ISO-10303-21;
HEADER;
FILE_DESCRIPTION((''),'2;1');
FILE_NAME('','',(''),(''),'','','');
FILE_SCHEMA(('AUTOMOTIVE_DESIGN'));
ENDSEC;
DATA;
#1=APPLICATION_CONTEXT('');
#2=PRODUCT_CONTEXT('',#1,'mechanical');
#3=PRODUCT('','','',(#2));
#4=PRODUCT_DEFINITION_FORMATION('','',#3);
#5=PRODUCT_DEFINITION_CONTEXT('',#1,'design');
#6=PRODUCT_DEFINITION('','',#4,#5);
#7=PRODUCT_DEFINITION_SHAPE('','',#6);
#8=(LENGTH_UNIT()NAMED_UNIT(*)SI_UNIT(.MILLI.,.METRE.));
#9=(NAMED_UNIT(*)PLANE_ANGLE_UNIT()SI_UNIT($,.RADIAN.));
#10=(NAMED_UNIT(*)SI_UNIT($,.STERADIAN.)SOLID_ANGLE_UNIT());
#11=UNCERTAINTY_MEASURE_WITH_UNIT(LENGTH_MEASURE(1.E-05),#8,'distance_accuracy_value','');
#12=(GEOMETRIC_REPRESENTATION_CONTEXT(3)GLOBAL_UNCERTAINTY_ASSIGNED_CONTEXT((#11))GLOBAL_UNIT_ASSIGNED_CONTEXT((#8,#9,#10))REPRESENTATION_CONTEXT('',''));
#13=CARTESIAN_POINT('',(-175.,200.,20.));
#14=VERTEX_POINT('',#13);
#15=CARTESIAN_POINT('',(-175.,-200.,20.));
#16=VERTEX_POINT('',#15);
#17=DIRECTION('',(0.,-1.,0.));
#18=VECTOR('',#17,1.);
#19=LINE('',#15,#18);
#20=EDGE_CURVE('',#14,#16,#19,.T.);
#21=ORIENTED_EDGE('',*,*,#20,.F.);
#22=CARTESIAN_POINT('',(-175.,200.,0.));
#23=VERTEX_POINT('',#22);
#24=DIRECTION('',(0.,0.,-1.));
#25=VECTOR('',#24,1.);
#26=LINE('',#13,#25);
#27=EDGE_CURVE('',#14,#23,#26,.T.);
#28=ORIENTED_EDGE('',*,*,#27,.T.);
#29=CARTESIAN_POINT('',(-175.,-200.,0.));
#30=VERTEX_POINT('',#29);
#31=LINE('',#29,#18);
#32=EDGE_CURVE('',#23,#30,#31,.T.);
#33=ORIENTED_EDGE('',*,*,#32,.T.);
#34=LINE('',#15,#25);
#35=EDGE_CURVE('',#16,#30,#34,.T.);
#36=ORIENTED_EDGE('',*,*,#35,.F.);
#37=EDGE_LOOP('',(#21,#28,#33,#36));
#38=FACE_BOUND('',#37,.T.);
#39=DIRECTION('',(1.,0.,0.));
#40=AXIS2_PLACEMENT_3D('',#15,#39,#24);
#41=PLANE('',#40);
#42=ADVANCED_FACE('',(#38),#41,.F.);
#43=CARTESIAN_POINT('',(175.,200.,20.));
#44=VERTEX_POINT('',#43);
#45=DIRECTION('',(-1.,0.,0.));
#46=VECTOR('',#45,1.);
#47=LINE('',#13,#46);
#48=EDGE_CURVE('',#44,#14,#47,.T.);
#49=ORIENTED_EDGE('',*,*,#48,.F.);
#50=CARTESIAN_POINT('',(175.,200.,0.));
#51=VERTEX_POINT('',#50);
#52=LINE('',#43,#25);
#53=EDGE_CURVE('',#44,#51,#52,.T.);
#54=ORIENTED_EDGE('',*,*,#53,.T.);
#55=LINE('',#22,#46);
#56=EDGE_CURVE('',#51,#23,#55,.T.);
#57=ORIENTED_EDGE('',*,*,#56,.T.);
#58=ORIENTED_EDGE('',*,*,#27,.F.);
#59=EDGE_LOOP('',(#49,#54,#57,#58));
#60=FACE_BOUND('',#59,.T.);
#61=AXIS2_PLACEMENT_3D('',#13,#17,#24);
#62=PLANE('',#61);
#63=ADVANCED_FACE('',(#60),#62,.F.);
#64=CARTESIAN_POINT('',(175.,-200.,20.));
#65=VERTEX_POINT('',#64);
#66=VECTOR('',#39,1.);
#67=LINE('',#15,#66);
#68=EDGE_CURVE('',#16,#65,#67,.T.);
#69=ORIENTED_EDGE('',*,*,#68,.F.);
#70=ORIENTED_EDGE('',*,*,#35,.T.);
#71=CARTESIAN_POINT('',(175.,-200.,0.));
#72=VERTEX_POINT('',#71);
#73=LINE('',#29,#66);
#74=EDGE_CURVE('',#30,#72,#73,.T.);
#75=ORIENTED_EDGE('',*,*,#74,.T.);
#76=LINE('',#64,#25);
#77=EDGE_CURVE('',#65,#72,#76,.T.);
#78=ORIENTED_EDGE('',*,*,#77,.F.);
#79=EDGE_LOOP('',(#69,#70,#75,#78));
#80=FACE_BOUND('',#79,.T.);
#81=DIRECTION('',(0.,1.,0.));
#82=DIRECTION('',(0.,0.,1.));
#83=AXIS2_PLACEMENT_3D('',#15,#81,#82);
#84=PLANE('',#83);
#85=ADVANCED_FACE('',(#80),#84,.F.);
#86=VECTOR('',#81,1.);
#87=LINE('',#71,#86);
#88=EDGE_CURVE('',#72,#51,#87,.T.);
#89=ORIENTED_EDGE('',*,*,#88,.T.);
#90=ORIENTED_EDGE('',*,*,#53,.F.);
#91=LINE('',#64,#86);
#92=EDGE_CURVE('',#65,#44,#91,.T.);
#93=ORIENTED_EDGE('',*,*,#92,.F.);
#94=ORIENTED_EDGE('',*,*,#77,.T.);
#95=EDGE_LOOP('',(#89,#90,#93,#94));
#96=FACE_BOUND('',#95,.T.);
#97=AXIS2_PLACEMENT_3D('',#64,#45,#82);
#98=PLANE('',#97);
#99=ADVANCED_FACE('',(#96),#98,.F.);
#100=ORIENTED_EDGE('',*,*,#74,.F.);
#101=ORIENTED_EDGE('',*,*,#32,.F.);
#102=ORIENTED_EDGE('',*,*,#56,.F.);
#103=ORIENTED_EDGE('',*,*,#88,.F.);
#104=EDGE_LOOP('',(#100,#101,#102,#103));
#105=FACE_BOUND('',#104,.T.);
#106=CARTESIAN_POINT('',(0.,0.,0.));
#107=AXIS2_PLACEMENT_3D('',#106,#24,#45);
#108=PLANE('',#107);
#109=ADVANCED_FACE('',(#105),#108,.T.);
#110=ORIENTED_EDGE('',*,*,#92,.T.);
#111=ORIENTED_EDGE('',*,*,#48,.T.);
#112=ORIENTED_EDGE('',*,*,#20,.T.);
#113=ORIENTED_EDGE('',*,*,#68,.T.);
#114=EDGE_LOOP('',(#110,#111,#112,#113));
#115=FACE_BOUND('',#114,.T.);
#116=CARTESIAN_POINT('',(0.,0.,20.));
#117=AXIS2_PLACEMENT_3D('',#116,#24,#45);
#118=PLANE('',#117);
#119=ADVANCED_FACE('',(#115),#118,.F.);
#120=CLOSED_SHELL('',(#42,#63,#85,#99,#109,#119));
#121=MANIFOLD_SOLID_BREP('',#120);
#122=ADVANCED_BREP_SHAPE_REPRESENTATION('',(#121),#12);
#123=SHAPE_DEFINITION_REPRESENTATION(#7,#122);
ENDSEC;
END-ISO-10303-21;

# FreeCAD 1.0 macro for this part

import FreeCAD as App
import Part
import Sketcher
from FreeCAD import Vector

doc = App.newDocument("Part")
params = doc.addObject("Spreadsheet::Sheet", "Params")
for row, (alias, value) in enumerate([
    ("sketch1_width", "350 mm"),
    ("sketch1_height", "400 mm"),
    ("pad1_length", "20 mm"),
], start=1):
    params.set(f"A{row}", alias)
    params.set(f"B{row}", "=" + value)
    params.setAlias(f"B{row}", alias)

body = doc.addObject("PartDesign::Body", "Body")

# Sketch on XY plane
sketch1 = body.newObject("Sketcher::SketchObject", "Sketch")
sketch1.AttachmentSupport = (doc.getObject("XY_Plane"), [""])
sketch1.MapMode = "FlatFace"
sketch1.addGeometry([
    Part.LineSegment(Vector(-175, 200, 0), Vector(-175, -200, 0)),
    Part.LineSegment(Vector(-175, -200, 0), Vector(175, -200, 0)),
    Part.LineSegment(Vector(175, -200, 0), Vector(175, 200, 0)),
    Part.LineSegment(Vector(175, 200, 0), Vector(-175, 200, 0)),
], False)
sketch1.addConstraint([
    Sketcher.Constraint("Coincident", 0, 2, 1, 1),
    Sketcher.Constraint("Coincident", 1, 2, 2, 1),
    Sketcher.Constraint("Coincident", 2, 2, 3, 1),
    Sketcher.Constraint("Coincident", 3, 2, 0, 1),
    Sketcher.Constraint("Vertical", 0),
    Sketcher.Constraint("Horizontal", 1),
    Sketcher.Constraint("Vertical", 2),
    Sketcher.Constraint("Horizontal", 3),
    Sketcher.Constraint("Symmetric", 0, 2, 2, 2, -1, 1),
    Sketcher.Constraint("DistanceX", 1, 1, 1, 2, 350.0),
    Sketcher.Constraint("DistanceY", 0, 2, 0, 1, 400.0),
])
sketch1.setExpression("Constraints[9]", "Params.sketch1_width")
sketch1.setExpression("Constraints[10]", "Params.sketch1_height")
pad1 = body.newObject("PartDesign::Pad", "Pad")
pad1.Profile = sketch1
pad1.setExpression("Length", "Params.pad1_length")

doc.recompute()
